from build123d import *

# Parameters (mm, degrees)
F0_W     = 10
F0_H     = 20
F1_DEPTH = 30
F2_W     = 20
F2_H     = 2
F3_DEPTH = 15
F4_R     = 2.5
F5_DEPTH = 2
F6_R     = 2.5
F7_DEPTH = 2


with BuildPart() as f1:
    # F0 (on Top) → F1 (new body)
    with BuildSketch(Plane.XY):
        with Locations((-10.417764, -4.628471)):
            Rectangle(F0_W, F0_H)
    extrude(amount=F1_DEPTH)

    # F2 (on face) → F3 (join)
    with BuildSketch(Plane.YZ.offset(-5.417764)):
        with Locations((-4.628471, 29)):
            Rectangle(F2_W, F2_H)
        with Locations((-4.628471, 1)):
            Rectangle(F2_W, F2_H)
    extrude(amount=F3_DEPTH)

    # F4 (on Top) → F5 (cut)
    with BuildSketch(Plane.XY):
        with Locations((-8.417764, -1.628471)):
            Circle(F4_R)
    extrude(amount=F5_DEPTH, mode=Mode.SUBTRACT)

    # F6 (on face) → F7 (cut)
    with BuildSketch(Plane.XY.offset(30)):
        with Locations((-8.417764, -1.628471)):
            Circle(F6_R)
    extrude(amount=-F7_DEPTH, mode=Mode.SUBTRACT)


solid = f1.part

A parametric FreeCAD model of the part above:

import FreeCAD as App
import Part
import Sketcher

V = App.Vector

doc = App.newDocument("Part")
body = doc.addObject("PartDesign::Body", "Body")

sketch1 = doc.addObject("Sketcher::SketchObject", "Sketch")
body.addObject(sketch1)
sketch1.AttachmentSupport = (doc.XY_Plane, [""])
sketch1.MapMode = "FlatFace"
sketch1.addGeometry([
    Part.LineSegment(V(-15, 5, 0), V(-15, -15, 0)),
    Part.LineSegment(V(-15, -15, 0), V(-5, -15, 0)),
    Part.LineSegment(V(-5, -15, 0), V(-5, 5, 0)),
    Part.LineSegment(V(-5, 5, 0), V(-15, 5, 0)),
], False)
sketch1.addConstraint([
    Sketcher.Constraint("Coincident", 0, 2, 1, 1),
    Sketcher.Constraint("Coincident", 1, 2, 2, 1),
    Sketcher.Constraint("Coincident", 2, 2, 3, 1),
    Sketcher.Constraint("Coincident", 3, 2, 0, 1),
    Sketcher.Constraint("Vertical", 0),
    Sketcher.Constraint("Horizontal", 1),
    Sketcher.Constraint("Vertical", 2),
    Sketcher.Constraint("Horizontal", 3),
    Sketcher.Constraint("DistanceX", 1, 1, 1, 2, 10.0),
    Sketcher.Constraint("DistanceY", 0, 2, 0, 1, 20.0),
    Sketcher.Constraint("DistanceY", 0, 2, -1, 1, 14.628471),
    Sketcher.Constraint("DistanceX", 0, 2, -1, 1, 15.417764),
])
pad1 = doc.addObject("PartDesign::Pad", "Pad")
body.addObject(pad1)
pad1.Profile = sketch1
pad1.Length = 30

sketch2 = doc.addObject("Sketcher::SketchObject", "Sketch001")
body.addObject(sketch2)
sketch2.AttachmentSupport = (doc.YZ_Plane, [""])
sketch2.MapMode = "FlatFace"
sketch2.AttachmentOffset = App.Placement(V(0, 0, -5.417764), App.Rotation())
sketch2.addGeometry([
    Part.LineSegment(V(-14.6, 30, 0), V(-14.6, 28, 0)),
    Part.LineSegment(V(-14.6, 28, 0), V(5.4, 28, 0)),
    Part.LineSegment(V(5.4, 28, 0), V(5.4, 30, 0)),
    Part.LineSegment(V(5.4, 30, 0), V(-14.6, 30, 0)),
    Part.LineSegment(V(-14.6, 2, 0), V(-14.6, 0, 0)),
    Part.LineSegment(V(-14.6, 0, 0), V(5.4, 0, 0)),
    Part.LineSegment(V(5.4, 0, 0), V(5.4, 2, 0)),
    Part.LineSegment(V(5.4, 2, 0), V(-14.6, 2, 0)),
], False)
sketch2.addConstraint([
    Sketcher.Constraint("Coincident", 0, 2, 1, 1),
    Sketcher.Constraint("Coincident", 1, 2, 2, 1),
    Sketcher.Constraint("Coincident", 2, 2, 3, 1),
    Sketcher.Constraint("Coincident", 3, 2, 0, 1),
    Sketcher.Constraint("Coincident", 4, 2, 5, 1),
    Sketcher.Constraint("Coincident", 5, 2, 6, 1),
    Sketcher.Constraint("Coincident", 6, 2, 7, 1),
    Sketcher.Constraint("Coincident", 7, 2, 4, 1),
    Sketcher.Constraint("Vertical", 0),
    Sketcher.Constraint("Horizontal", 1),
    Sketcher.Constraint("Vertical", 2),
    Sketcher.Constraint("Horizontal", 3),
    Sketcher.Constraint("Vertical", 4),
    Sketcher.Constraint("Horizontal", 5),
    Sketcher.Constraint("Vertical", 6),
    Sketcher.Constraint("Horizontal", 7),
    Sketcher.Constraint("PointOnObject", 4, 2, -1),
    Sketcher.Constraint("Vertical", 3, 2, 4, 2),
    Sketcher.Constraint("Vertical", 2, 2, 5, 2),
    Sketcher.Constraint("Equal", 2, 4),
    Sketcher.Constraint("DistanceX", 1, 1, 1, 2, 20.0),
    Sketcher.Constraint("DistanceY", 0, 2, 0, 1, 2.0),
    Sketcher.Constraint("DistanceY", -1, 1, 0, 2, 28.0),
    Sketcher.Constraint("DistanceX", 0, 2, -1, 1, 14.628471),
])
pad2 = doc.addObject("PartDesign::Pad", "Pad001")
body.addObject(pad2)
pad2.Profile = sketch2
pad2.Length = 15

sketch3 = doc.addObject("Sketcher::SketchObject", "Sketch002")
body.addObject(sketch3)
sketch3.AttachmentSupport = (doc.XY_Plane, [""])
sketch3.MapMode = "FlatFace"
sketch3.addGeometry(Part.Circle(V(-8.4, -1.6, 0), V(0, 0, 1), 2.5), False)
sketch3.addConstraint([
    Sketcher.Constraint("Diameter", 0, 5.0),
    Sketcher.Constraint("DistanceY", 0, 3, -1, 1, 1.628471),
    Sketcher.Constraint("DistanceX", 0, 3, -1, 1, 8.417764),
])
pocket1 = doc.addObject("PartDesign::Pocket", "Pocket")
body.addObject(pocket1)
pocket1.Profile = sketch3
pocket1.Length = 2
pocket1.Reversed = True

sketch4 = doc.addObject("Sketcher::SketchObject", "Sketch003")
body.addObject(sketch4)
sketch4.AttachmentSupport = (doc.XY_Plane, [""])
sketch4.MapMode = "FlatFace"
sketch4.AttachmentOffset = App.Placement(V(0, 0, 30), App.Rotation())
sketch4.addGeometry(Part.Circle(V(-8.4, -1.6, 0), V(0, 0, 1), 2.5), False)
sketch4.addConstraint([
    Sketcher.Constraint("Diameter", 0, 5.0),
    Sketcher.Constraint("DistanceY", 0, 3, -1, 1, 1.628471),
    Sketcher.Constraint("DistanceX", 0, 3, -1, 1, 8.417764),
])
pocket2 = doc.addObject("PartDesign::Pocket", "Pocket001")
body.addObject(pocket2)
pocket2.Profile = sketch4
pocket2.Length = 2

doc.recompute()
